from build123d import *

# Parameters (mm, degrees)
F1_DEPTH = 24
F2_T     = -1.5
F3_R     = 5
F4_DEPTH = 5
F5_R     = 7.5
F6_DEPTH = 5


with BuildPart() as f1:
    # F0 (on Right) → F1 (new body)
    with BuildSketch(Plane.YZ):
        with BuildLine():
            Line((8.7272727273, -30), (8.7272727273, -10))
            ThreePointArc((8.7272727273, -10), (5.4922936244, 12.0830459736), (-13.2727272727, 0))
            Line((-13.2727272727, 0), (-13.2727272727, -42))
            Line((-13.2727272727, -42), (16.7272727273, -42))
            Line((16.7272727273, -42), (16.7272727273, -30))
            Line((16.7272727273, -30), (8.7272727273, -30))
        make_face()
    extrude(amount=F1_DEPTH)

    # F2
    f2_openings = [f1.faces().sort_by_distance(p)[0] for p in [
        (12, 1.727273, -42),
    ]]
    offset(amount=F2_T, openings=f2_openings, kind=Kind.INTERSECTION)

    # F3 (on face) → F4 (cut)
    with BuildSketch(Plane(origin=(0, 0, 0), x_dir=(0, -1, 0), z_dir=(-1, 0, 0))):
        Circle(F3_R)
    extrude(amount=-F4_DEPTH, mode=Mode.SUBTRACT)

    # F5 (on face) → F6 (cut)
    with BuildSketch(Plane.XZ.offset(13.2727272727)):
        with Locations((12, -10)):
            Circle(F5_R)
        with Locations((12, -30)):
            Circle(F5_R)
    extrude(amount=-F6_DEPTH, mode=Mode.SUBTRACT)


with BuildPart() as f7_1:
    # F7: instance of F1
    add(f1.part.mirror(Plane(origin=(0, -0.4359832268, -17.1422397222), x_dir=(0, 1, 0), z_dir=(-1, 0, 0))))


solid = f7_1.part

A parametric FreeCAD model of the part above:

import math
import FreeCAD as App
import Part
import Sketcher

V = App.Vector
Q = App.Units.Quantity


def faces_at(feature, points):
    """Names of the faces that lie closest to the given points."""
    faces = feature.Shape.Faces
    near = lambda p: min(range(len(faces)), key=lambda i: faces[i].distToShape(Part.Vertex(*p))[0])
    return sorted({f"Face{near(p) + 1}" for p in points})

doc = App.newDocument("Part")
body = doc.addObject("PartDesign::Body", "Body")

# Sketch on YZ plane
sketch1 = body.newObject("Sketcher::SketchObject", "Sketch")
sketch1.AttachmentSupport = (doc.getObject("YZ_Plane"), [""])
sketch1.MapMode = "FlatFace"
sketch1.addGeometry([
    Part.LineSegment(V(9, -30, 0), V(9, -10, 0)),  # 0
    Part.ArcOfCircle(Part.Circle(V(0, 0, 0), V(0, 0, 1), 13), math.radians(-49), math.radians(180)),  # 1
    Part.LineSegment(V(-13, 0, 0), V(-13, -42, 0)),  # 2
    Part.LineSegment(V(-13, -42, 0), V(17, -42, 0)),  # 3
    Part.LineSegment(V(17, -42, 0), V(17, -30, 0)),  # 4
    Part.LineSegment(V(17, -30, 0), V(9, -30, 0)),  # 5
], False)
sketch1.addConstraint([
    Sketcher.Constraint("Coincident", 0, 2, 1, 1),
    Sketcher.Constraint("Tangent", 1, 2, 2, 1),
    Sketcher.Constraint("Coincident", 2, 2, 3, 1),
    Sketcher.Constraint("Coincident", 3, 2, 4, 1),
    Sketcher.Constraint("Coincident", 4, 2, 5, 1),
    Sketcher.Constraint("Coincident", 5, 2, 0, 1),
    Sketcher.Constraint("Vertical", 0),
    Sketcher.Constraint("Vertical", 2),
    Sketcher.Constraint("Horizontal", 3),
    Sketcher.Constraint("Vertical", 4),
    Sketcher.Constraint("Horizontal", 5),
    Sketcher.Constraint("Coincident", 1, 3, -1, 1),
    Sketcher.Constraint("DistanceX", 3, 1, 3, 2, Q("30 mm")),
    Sketcher.Constraint("DistanceX", 5, 2, 5, 1, Q("8 mm")),
    Sketcher.Constraint("DistanceY", 0, 1, 0, 2, Q("20 mm")),
    Sketcher.Constraint("DistanceY", 2, 2, 2, 1, Q("42 mm")),
    Sketcher.Constraint("DistanceY", 4, 1, 4, 2, Q("12 mm")),
])
pad1 = body.newObject("PartDesign::Pad", "Pad")
pad1.Profile = sketch1
pad1.Length = 24
doc.recompute()

thickness = body.newObject("PartDesign::Thickness", "Thickness")
thickness.Base = (pad1, faces_at(pad1, [(12, 1.727, -42)]))
thickness.Value = 1.5
thickness.Reversed = True
thickness.Join = "Intersection"

# Sketch on YZ plane
sketch2 = body.newObject("Sketcher::SketchObject", "Sketch001")
sketch2.AttachmentSupport = (doc.getObject("YZ_Plane"), [""])
sketch2.MapMode = "FlatFace"
sketch2.addGeometry(Part.Circle(V(0, 0, 0), V(0, 0, 1), 5), False)
sketch2.addConstraint([
    Sketcher.Constraint("Coincident", 0, 3, -1, 1),
    Sketcher.Constraint("Diameter", 0, Q("10 mm")),
])
pocket1 = body.newObject("PartDesign::Pocket", "Pocket")
pocket1.Profile = sketch2
pocket1.Length = 5
pocket1.Reversed = True

# Sketch on XZ plane
sketch3 = body.newObject("Sketcher::SketchObject", "Sketch002")
sketch3.AttachmentSupport = (doc.getObject("XZ_Plane"), [""])
sketch3.MapMode = "FlatFace"
sketch3.AttachmentOffset = App.Placement(V(0, 0, 13.272727), App.Rotation())
sketch3.addGeometry([
    Part.Circle(V(12, -10, 0), V(0, 0, 1), 8),
    Part.Circle(V(12, -30, 0), V(0, 0, 1), 8),
], False)
sketch3.addConstraint([
    Sketcher.Constraint("Equal", 0, 1),
    Sketcher.Constraint("Vertical", 0, 3, 1, 3),
    Sketcher.Constraint("Diameter", 0, Q("15 mm")),
    Sketcher.Constraint("DistanceX", -1, 1, 0, 3, Q("12 mm")),
    Sketcher.Constraint("DistanceY", 0, 3, -1, 1, Q("10 mm")),
    Sketcher.Constraint("DistanceY", 1, 3, -1, 1, Q("30 mm")),
])
pocket2 = body.newObject("PartDesign::Pocket", "Pocket001")
pocket2.Profile = sketch3
pocket2.Length = 5
body2 = doc.addObject("PartDesign::Body", "Body001")
doc.recompute()

mirroring = doc.addObject("Part::Mirroring", "Mirroring")
mirroring.Source = body
mirroring.Base = V(0, -0.435983, -17.14224)
mirroring.Normal = V(-1, 0, 0)
body2.BaseFeature = mirroring
doc.recompute()
body.Visibility = False
mirroring.Visibility = False

doc.recompute()
